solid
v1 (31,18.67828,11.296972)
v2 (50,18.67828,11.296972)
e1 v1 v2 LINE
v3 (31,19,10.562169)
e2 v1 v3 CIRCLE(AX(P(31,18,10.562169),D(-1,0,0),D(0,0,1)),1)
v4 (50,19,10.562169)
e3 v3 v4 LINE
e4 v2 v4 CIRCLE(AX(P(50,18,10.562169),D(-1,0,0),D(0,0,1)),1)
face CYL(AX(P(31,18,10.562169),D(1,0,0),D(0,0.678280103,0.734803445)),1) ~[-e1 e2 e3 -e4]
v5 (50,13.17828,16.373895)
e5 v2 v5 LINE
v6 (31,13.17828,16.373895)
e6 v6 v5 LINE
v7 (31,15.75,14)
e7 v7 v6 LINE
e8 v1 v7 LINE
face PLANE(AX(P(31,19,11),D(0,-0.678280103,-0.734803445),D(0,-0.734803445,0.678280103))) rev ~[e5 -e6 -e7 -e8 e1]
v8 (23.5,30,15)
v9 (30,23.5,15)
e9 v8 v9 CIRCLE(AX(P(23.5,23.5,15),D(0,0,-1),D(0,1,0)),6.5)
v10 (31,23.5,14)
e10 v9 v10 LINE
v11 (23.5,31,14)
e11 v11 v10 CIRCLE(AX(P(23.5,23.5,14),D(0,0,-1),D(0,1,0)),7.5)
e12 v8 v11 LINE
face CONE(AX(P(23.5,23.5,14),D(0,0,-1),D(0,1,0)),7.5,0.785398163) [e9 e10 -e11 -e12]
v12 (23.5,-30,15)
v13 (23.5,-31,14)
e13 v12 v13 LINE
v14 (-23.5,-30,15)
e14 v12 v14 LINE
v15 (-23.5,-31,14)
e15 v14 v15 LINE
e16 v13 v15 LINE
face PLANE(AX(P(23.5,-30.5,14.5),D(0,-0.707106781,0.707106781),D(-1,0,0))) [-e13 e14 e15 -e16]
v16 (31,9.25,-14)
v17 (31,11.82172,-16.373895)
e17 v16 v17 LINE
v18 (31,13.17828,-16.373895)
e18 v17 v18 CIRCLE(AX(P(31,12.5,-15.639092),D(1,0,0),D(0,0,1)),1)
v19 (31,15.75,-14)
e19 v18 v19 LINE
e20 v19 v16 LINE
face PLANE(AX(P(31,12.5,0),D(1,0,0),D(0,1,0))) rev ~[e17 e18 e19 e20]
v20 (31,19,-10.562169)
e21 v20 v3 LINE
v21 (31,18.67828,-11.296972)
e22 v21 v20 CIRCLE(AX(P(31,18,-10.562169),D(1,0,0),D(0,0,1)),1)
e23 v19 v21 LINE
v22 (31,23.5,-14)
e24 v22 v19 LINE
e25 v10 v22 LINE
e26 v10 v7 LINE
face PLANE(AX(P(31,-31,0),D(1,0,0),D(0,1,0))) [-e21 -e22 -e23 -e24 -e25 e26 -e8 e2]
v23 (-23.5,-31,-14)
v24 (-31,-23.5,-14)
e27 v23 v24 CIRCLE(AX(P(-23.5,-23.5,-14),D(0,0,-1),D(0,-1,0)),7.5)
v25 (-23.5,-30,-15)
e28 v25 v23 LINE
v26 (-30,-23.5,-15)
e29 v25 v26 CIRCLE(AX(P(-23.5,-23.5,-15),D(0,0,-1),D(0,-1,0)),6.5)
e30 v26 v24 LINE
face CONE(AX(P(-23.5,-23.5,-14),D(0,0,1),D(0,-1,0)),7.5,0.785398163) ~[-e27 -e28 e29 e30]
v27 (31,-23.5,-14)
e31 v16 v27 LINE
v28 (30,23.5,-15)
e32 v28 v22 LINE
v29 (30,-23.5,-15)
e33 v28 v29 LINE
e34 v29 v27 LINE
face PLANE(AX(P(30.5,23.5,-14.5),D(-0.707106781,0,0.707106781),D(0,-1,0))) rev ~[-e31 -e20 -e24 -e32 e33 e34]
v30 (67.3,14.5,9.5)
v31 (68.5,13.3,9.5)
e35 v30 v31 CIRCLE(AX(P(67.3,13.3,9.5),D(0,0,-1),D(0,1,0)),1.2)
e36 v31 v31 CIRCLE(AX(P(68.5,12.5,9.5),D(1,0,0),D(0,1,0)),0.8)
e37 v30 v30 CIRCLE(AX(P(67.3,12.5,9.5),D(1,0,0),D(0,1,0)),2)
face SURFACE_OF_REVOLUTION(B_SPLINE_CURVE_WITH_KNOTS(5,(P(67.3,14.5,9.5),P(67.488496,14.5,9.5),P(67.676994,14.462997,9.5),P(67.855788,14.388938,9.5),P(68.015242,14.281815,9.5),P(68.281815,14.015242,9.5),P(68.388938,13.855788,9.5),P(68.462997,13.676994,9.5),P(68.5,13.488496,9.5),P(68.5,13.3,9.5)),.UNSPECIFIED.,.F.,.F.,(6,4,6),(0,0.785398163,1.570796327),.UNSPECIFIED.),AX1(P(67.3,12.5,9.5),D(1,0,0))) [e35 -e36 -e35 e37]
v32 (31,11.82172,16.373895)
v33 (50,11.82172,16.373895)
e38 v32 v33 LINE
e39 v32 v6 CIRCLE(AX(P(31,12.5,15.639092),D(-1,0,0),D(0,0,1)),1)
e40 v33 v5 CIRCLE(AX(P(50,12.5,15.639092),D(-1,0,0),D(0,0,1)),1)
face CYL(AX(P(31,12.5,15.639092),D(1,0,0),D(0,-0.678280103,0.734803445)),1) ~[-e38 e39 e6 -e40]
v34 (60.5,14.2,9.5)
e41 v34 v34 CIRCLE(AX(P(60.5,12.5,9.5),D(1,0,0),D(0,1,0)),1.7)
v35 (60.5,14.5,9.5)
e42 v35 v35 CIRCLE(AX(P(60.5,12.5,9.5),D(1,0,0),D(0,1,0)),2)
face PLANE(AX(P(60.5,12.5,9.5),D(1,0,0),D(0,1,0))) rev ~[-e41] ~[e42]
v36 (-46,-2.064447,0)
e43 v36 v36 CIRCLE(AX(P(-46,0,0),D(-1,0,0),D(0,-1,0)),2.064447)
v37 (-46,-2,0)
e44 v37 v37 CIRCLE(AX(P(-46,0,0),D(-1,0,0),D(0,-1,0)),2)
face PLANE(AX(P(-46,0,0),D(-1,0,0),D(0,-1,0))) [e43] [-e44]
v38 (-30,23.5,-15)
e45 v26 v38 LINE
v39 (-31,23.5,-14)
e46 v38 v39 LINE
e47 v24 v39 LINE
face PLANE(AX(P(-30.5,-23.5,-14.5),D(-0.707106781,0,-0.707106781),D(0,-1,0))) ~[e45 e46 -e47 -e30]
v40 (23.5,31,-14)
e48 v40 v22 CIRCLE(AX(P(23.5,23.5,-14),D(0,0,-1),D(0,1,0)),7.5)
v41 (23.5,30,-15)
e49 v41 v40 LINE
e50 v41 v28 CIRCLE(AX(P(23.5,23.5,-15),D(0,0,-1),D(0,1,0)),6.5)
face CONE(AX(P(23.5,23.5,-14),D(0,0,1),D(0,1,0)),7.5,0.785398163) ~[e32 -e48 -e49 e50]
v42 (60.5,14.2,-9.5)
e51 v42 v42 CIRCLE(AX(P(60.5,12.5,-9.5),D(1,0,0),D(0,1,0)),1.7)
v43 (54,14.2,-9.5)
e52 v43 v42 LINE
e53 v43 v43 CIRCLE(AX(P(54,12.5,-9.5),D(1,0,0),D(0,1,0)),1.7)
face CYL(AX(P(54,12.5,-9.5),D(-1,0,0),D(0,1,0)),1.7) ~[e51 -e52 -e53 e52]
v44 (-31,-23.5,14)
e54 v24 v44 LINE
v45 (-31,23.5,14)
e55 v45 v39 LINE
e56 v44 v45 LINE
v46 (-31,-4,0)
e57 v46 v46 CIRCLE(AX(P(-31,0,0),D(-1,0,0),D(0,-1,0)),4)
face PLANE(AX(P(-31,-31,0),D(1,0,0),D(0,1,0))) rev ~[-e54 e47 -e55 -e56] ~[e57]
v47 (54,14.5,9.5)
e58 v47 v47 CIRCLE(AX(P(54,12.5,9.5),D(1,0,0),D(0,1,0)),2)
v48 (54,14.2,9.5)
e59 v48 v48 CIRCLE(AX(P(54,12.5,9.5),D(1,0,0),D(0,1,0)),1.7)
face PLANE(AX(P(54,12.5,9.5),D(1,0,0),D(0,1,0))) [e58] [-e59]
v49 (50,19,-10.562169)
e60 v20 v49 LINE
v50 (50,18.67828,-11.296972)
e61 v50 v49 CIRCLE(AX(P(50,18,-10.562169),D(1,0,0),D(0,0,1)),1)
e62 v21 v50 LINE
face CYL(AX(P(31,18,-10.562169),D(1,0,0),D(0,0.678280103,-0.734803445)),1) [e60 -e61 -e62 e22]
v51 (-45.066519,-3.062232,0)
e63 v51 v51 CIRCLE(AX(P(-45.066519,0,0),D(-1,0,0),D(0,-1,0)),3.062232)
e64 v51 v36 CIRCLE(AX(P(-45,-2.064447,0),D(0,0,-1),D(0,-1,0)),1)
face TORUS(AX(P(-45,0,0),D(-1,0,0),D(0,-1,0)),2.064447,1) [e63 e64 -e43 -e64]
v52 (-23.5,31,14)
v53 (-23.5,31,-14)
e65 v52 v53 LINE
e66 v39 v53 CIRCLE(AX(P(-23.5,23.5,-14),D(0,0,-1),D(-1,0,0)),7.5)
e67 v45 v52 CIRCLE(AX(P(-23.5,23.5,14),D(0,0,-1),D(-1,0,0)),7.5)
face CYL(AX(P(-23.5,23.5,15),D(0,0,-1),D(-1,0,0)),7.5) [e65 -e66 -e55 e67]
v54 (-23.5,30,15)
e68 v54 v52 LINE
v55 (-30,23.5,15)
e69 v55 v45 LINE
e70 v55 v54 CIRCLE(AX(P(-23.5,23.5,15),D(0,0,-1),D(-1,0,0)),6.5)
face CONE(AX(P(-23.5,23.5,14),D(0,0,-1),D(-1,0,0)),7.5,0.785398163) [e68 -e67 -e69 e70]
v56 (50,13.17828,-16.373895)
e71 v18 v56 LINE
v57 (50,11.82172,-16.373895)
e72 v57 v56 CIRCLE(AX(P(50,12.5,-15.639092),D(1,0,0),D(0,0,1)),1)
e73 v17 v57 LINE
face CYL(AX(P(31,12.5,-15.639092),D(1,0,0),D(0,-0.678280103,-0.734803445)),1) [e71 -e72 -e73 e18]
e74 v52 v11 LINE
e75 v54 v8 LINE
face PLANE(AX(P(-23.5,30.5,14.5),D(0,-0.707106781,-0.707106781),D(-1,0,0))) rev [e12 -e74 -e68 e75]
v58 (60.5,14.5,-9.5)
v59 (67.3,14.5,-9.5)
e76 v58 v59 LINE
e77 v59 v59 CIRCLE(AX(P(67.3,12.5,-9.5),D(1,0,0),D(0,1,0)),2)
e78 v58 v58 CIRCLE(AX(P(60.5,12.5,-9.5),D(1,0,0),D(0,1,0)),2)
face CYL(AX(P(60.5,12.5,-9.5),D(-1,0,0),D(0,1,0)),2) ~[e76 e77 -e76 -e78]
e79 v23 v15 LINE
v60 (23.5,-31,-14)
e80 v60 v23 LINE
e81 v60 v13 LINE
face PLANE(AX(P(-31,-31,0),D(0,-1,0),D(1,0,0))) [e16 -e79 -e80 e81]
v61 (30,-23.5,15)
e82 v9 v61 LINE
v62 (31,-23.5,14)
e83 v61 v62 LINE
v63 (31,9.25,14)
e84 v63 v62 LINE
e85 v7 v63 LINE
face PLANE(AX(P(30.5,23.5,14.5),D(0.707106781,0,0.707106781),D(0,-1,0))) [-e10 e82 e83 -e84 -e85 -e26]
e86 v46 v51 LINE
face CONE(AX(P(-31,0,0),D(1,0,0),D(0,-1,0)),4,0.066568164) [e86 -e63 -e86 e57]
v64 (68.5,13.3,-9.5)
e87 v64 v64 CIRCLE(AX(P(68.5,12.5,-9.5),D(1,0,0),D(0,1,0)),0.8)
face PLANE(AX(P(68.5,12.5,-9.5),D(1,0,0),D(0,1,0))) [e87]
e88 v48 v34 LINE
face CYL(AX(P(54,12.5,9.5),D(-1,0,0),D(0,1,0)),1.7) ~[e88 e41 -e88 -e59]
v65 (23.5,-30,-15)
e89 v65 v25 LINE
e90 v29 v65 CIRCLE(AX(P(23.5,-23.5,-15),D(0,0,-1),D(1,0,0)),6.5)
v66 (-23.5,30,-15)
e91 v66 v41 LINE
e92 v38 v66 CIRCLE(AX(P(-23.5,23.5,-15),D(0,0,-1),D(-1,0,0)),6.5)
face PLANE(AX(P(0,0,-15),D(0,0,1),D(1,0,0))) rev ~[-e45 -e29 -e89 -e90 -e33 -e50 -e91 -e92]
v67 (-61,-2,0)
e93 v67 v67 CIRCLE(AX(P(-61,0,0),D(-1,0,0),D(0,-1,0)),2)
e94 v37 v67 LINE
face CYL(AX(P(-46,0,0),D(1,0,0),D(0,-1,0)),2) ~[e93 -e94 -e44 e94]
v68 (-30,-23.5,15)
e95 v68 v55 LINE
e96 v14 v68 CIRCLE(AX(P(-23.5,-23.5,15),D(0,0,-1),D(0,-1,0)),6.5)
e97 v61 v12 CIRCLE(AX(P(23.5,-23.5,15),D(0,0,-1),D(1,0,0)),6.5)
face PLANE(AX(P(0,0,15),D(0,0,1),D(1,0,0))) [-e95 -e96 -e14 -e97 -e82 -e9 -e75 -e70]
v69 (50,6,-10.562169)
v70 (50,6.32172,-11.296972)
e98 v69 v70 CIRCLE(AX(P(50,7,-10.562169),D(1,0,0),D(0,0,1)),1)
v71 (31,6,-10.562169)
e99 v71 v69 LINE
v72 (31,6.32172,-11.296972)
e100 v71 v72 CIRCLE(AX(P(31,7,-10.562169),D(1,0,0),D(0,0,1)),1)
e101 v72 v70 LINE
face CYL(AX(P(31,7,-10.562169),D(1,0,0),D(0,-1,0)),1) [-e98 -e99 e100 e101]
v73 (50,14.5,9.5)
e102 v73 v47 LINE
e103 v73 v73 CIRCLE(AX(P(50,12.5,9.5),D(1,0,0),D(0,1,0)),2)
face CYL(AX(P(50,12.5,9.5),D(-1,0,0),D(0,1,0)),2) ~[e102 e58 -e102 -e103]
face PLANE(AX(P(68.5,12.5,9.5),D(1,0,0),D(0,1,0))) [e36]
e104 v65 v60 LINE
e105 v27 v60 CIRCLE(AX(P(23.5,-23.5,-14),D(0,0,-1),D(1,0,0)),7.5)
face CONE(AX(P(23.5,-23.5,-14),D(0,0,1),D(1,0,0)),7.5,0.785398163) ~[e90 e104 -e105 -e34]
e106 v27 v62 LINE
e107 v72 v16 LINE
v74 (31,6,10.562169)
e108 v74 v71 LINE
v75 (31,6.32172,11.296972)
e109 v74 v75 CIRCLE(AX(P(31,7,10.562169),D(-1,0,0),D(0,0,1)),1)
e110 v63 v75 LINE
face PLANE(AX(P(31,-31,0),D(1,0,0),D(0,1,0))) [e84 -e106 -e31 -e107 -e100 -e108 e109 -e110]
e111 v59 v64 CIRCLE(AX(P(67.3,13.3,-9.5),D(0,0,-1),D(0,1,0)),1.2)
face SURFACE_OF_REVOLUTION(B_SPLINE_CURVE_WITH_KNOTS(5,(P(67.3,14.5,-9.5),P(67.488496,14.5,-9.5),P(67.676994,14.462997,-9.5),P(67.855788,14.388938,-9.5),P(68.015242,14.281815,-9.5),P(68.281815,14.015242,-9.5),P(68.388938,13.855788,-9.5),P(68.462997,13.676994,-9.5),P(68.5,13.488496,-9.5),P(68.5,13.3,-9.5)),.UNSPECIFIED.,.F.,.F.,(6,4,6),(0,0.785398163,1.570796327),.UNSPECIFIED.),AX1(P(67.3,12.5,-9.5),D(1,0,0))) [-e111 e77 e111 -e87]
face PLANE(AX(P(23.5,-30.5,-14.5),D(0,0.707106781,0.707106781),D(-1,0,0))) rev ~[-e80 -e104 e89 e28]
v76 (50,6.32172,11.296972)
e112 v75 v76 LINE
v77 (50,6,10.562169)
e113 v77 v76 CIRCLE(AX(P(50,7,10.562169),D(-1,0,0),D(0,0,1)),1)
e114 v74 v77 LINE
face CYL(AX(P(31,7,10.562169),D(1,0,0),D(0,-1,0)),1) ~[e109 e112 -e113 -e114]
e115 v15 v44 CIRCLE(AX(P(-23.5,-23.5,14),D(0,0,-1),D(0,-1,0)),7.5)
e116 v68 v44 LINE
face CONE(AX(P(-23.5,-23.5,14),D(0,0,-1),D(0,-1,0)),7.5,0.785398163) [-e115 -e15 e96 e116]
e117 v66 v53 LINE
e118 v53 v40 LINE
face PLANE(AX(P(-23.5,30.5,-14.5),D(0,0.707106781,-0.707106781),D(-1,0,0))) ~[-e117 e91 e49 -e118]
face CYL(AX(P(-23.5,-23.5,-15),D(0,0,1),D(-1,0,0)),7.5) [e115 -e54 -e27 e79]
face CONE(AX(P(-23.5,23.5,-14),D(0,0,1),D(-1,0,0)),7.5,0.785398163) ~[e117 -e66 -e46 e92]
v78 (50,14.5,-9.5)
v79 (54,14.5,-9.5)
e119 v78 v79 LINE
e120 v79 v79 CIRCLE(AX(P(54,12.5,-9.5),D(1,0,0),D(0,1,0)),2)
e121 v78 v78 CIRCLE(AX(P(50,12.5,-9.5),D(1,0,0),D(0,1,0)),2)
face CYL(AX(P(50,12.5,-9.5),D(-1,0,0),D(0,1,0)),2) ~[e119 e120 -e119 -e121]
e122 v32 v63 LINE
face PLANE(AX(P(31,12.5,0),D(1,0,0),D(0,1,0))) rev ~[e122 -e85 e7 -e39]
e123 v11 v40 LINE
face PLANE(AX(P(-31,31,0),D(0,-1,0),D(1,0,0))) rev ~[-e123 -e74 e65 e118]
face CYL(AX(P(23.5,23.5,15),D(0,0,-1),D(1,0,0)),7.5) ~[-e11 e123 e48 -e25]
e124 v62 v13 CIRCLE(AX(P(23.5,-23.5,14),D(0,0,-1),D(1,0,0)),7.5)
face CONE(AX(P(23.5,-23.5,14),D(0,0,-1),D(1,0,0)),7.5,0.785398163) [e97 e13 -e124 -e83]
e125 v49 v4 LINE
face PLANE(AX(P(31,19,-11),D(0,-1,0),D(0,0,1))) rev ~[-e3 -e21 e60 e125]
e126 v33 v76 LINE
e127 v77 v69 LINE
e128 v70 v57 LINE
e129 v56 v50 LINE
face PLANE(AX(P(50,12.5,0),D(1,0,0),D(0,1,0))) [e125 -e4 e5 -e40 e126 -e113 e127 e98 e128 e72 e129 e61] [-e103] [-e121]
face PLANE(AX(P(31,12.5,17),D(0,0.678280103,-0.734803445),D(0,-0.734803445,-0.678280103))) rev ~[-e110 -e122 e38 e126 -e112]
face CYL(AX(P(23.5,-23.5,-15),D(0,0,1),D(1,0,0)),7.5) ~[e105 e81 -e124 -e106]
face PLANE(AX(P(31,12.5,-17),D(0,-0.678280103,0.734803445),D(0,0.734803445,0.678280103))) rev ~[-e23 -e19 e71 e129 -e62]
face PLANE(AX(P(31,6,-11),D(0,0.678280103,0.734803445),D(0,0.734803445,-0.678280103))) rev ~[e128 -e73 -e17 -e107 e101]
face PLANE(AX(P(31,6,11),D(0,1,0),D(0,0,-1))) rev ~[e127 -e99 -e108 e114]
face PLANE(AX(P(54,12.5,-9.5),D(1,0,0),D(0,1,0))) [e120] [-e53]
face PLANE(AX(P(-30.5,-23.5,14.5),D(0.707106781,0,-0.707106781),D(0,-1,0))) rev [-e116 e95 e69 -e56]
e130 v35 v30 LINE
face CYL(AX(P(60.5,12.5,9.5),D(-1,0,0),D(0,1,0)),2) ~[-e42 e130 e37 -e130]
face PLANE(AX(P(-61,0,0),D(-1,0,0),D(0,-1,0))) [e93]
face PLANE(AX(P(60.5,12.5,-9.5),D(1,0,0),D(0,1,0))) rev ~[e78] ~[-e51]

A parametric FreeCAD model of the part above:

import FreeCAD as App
import Part
import Sketcher

V = App.Vector


def edges_at(feature, points):
    """Names of the edges that pass closest to the given points."""
    edges = feature.Shape.Edges
    near = lambda p: min(range(len(edges)), key=lambda i: edges[i].distToShape(Part.Vertex(*p))[0])
    return sorted({f"Edge{near(p) + 1}" for p in points})


def add_polygon(sketch, points):
    """Adds a closed chain of lines whose ends are joined by coincident constraints."""
    first, n = sketch.GeometryCount, len(points)
    for a, b in zip(points, points[1:] + points[:1]):
        sketch.addGeometry(Part.LineSegment(App.Vector(*a, 0), App.Vector(*b, 0)), False)
    for i in range(n):
        sketch.addConstraint(Sketcher.Constraint("Coincident", first + i, 2, first + (i + 1) % n, 1))

doc = App.newDocument("Part")
body = doc.addObject("PartDesign::Body", "Body")

sketch1 = body.newObject("Sketcher::SketchObject", "Sketch")
sketch1.AttachmentSupport = (doc.getObject("XY_Plane"), [""])
sketch1.MapMode = "FlatFace"
add_polygon(sketch1, [(-31, 31), (-31, -31), (31, -31), (31, 31)])
sketch1.addConstraint(Sketcher.Constraint("Vertical", 0))
sketch1.addConstraint(Sketcher.Constraint("Horizontal", 1))
sketch1.addConstraint(Sketcher.Constraint("Vertical", 2))
sketch1.addConstraint(Sketcher.Constraint("Horizontal", 3))
sketch1.addConstraint(Sketcher.Constraint("Symmetric", 0, 2, 2, 2, -1, 1))
sketch1.addConstraint(Sketcher.Constraint("Equal", 3, 0))
sketch1.addConstraint(Sketcher.Constraint("DistanceX", 1, 1, 1, 2, 62.0))
pad1 = body.newObject("PartDesign::Pad", "Pad")
pad1.Profile = sketch1
pad1.Length = 30
pad1.Midplane = True
doc.recompute()

fillet = body.newObject("PartDesign::Fillet", "Fillet")
fillet.Base = (pad1, edges_at(pad1, [
    (31, -31, 0),
    (-31, -31, 0),
    (31, 31, 0),
    (-31, 31, 0),
]))
fillet.Radius = 7.5
doc.recompute()

chamfer = body.newObject("PartDesign::Chamfer", "Chamfer")
chamfer.Base = (fillet, edges_at(fillet, [
    (0, 31, 15),
    (-28.803, 28.803, 15),
    (-31, 0, 15),
    (31, 0, 15),
    (28.803, 28.803, 15),
    (-28.803, -28.803, 15),
    (0, -31, 15),
    (28.803, -28.803, 15),
    (28.803, -28.803, -15),
    (0, -31, -15),
    (-28.803, -28.803, -15),
    (-31, 0, -15),
    (31, 0, -15),
    (28.803, 28.803, -15),
    (0, 31, -15),
    (-28.803, 28.803, -15),
]))
chamfer.Size = 1

sketch2 = body.newObject("Sketcher::SketchObject", "Sketch001")
sketch2.AttachmentSupport = (doc.getObject("YZ_Plane"), [""])
sketch2.MapMode = "FlatFace"
sketch2.AttachmentOffset = App.Placement(V(0, 0, 31), App.Rotation())
add_polygon(sketch2, [(6, 11), (6, -11), (12, -17), (19, -11), (19, 11), (12, 17)])
sketch2.addConstraint(Sketcher.Constraint("Vertical", 0))
sketch2.addConstraint(Sketcher.Constraint("Vertical", 3))
sketch2.addConstraint(Sketcher.Constraint("Symmetric", 1, 2, 4, 2, -1))
sketch2.addConstraint(Sketcher.Constraint("Parallel", 1, 4))
sketch2.addConstraint(Sketcher.Constraint("Parallel", 2, 5))
sketch2.addConstraint(Sketcher.Constraint("Horizontal", 0, 2, 2, 2))
sketch2.addConstraint(Sketcher.Constraint("Horizontal", 3, 2, 5, 2))
sketch2.addConstraint(Sketcher.Constraint("DistanceY", 0, 2, 0, 1, 22.0))
sketch2.addConstraint(Sketcher.Constraint("DistanceX", -1, 1, 0, 2, 6.0))
sketch2.addConstraint(Sketcher.Constraint("DistanceY", 1, 2, -1, 1, 17.0))
sketch2.addConstraint(Sketcher.Constraint("DistanceX", -1, 1, 2, 2, 19.0))
pad2 = body.newObject("PartDesign::Pad", "Pad001")
pad2.Profile = sketch2
pad2.Length = 19
doc.recompute()

fillet2 = body.newObject("PartDesign::Fillet", "Fillet001")
fillet2.Base = (pad2, edges_at(pad2, [
    (40.5, 19, 11),
    (40.5, 6, 11),
    (40.5, 12.5, 17),
    (40.5, 6, -11),
    (40.5, 12.5, -17),
    (40.5, 19, -11),
]))
fillet2.Radius = 1

sketch3 = body.newObject("Sketcher::SketchObject", "Sketch002")
sketch3.AttachmentSupport = (doc.getObject("YZ_Plane"), [""])
sketch3.MapMode = "FlatFace"
sketch3.AttachmentOffset = App.Placement(V(0, 0, 50), App.Rotation())
sketch3.addGeometry(Part.Circle(V(12.5, 9.5, 0), V(0, 0, 1), 2), False)
sketch3.addGeometry(Part.Circle(V(12.5, -9.5, 0), V(0, 0, 1), 2), False)
sketch3.addConstraint(Sketcher.Constraint("Equal", 0, 1))
sketch3.addConstraint(Sketcher.Constraint("Symmetric", 0, 3, 1, 3, -1))
sketch3.addConstraint(Sketcher.Constraint("Diameter", 0, 4.0))
sketch3.addConstraint(Sketcher.Constraint("DistanceY", 1, 3, 0, 3, 19.0))
sketch3.addConstraint(Sketcher.Constraint("DistanceX", -1, 1, 0, 3, 12.5))
pad3 = body.newObject("PartDesign::Pad", "Pad002")
pad3.Profile = sketch3
pad3.Length = 4

sketch4 = body.newObject("Sketcher::SketchObject", "Sketch003")
sketch4.AttachmentSupport = (doc.getObject("YZ_Plane"), [""])
sketch4.MapMode = "FlatFace"
sketch4.AttachmentOffset = App.Placement(V(0, 0, 54), App.Rotation())
sketch4.addGeometry(Part.Circle(V(12.5, 9.5, 0), V(0, 0, 1), 1.7), False)
sketch4.addGeometry(Part.Circle(V(12.5, -9.5, 0), V(0, 0, 1), 1.7), False)
sketch4.addConstraint(Sketcher.Constraint("Equal", 0, 1))
sketch4.addConstraint(Sketcher.Constraint("Symmetric", 0, 3, 1, 3, -1))
sketch4.addConstraint(Sketcher.Constraint("Diameter", 0, 3.4))
sketch4.addConstraint(Sketcher.Constraint("DistanceY", 1, 3, 0, 3, 19.0))
sketch4.addConstraint(Sketcher.Constraint("DistanceX", -1, 1, 0, 3, 12.5))
pad4 = body.newObject("PartDesign::Pad", "Pad003")
pad4.Profile = sketch4
pad4.Length = 6.5

sketch5 = body.newObject("Sketcher::SketchObject", "Sketch004")
sketch5.AttachmentSupport = (doc.getObject("YZ_Plane"), [""])
sketch5.MapMode = "FlatFace"
sketch5.AttachmentOffset = App.Placement(V(0, 0, 60.5), App.Rotation())
sketch5.addGeometry(Part.Circle(V(12.5, 9.5, 0), V(0, 0, 1), 2), False)
sketch5.addGeometry(Part.Circle(V(12.5, -9.5, 0), V(0, 0, 1), 2), False)
sketch5.addConstraint(Sketcher.Constraint("Equal", 0, 1))
sketch5.addConstraint(Sketcher.Constraint("Symmetric", 0, 3, 1, 3, -1))
sketch5.addConstraint(Sketcher.Constraint("Diameter", 0, 4.0))
sketch5.addConstraint(Sketcher.Constraint("DistanceY", 1, 3, 0, 3, 19.0))
sketch5.addConstraint(Sketcher.Constraint("DistanceX", -1, 1, 0, 3, 12.5))
pad5 = body.newObject("PartDesign::Pad", "Pad004")
pad5.Profile = sketch5
pad5.Length = 8
doc.recompute()

fillet3 = body.newObject("PartDesign::Fillet", "Fillet002")
fillet3.Base = (pad5, edges_at(pad5, [(68.5, 10.5, 9.5)]))
fillet3.Radius = 1.2
doc.recompute()

fillet4 = body.newObject("PartDesign::Fillet", "Fillet003")
fillet4.Base = (fillet3, edges_at(fillet3, [(68.5, 10.5, -9.5)]))
fillet4.Radius = 1.2

sketch6 = body.newObject("Sketcher::SketchObject", "Sketch005")
sketch6.AttachmentSupport = (doc.getObject("XY_Plane"), [""])
sketch6.MapMode = "FlatFace"
add_polygon(sketch6, [(-31, 0), (-31, -4), (-46, -3), (-46, 0)])
sketch6.addConstraint(Sketcher.Constraint("Vertical", 0))
sketch6.addConstraint(Sketcher.Constraint("Vertical", 2))
sketch6.addConstraint(Sketcher.Constraint("Horizontal", 3))
sketch6.addConstraint(Sketcher.Constraint("PointOnObject", 2, 2, -1))
sketch6.addConstraint(Sketcher.Constraint("DistanceX", 3, 1, 3, 2, 15.0))
sketch6.addConstraint(Sketcher.Constraint("DistanceY", 0, 2, 0, 1, 4.0))
sketch6.addConstraint(Sketcher.Constraint("DistanceY", 2, 1, 2, 2, 3.0))
sketch6.addConstraint(Sketcher.Constraint("DistanceX", 0, 2, -1, 1, 31.0))
revolution = body.newObject("PartDesign::Revolution", "Revolution")
revolution.Profile = sketch6
revolution.ReferenceAxis = (sketch6, ["H_Axis"])
revolution.Angle = 360
doc.recompute()

fillet5 = body.newObject("PartDesign::Fillet", "Fillet004")
fillet5.Base = (revolution, edges_at(revolution, [(-46, 3, 0)]))
fillet5.Radius = 1

sketch7 = body.newObject("Sketcher::SketchObject", "Sketch006")
sketch7.AttachmentSupport = (doc.getObject("YZ_Plane"), [""])
sketch7.MapMode = "FlatFace"
sketch7.AttachmentOffset = App.Placement(V(0, 0, -46), App.Rotation())
sketch7.addGeometry(Part.Circle(V(0, 0, 0), V(0, 0, 1), 2), False)
sketch7.addConstraint(Sketcher.Constraint("Coincident", 0, 3, -1, 1))
sketch7.addConstraint(Sketcher.Constraint("Diameter", 0, 4.0))
pad6 = body.newObject("PartDesign::Pad", "Pad005")
pad6.Profile = sketch7
pad6.Length = 15
pad6.Reversed = True

doc.recompute()
